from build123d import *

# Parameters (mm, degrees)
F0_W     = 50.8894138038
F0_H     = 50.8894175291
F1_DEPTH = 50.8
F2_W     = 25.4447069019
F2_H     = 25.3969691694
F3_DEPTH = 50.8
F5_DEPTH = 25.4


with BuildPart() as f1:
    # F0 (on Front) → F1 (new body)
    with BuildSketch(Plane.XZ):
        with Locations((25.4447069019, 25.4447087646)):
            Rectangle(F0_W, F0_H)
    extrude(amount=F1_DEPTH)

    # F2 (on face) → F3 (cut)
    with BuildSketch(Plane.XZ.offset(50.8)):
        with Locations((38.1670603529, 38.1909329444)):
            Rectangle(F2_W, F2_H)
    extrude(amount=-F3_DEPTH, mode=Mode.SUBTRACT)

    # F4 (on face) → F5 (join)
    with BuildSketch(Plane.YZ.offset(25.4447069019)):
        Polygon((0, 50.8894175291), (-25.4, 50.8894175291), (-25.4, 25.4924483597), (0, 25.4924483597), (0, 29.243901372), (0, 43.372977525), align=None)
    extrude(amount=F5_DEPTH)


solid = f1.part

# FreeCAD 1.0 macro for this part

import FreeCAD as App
import Part
import Sketcher
Q = App.Units.Quantity


def add_polygon(sketch, points):
    """Adds a closed chain of lines whose ends are joined by coincident constraints."""
    first, n = sketch.GeometryCount, len(points)
    for a, b in zip(points, points[1:] + points[:1]):
        sketch.addGeometry(Part.LineSegment(App.Vector(*a, 0), App.Vector(*b, 0)), False)
    for i in range(n):
        sketch.addConstraint(Sketcher.Constraint("Coincident", first + i, 2, first + (i + 1) % n, 1))

doc = App.newDocument("Part")
body = doc.addObject("PartDesign::Body", "Body")

# Sketch on XZ plane
sketch1 = doc.addObject("Sketcher::SketchObject", "Sketch")
body.addObject(sketch1)
sketch1.AttachmentSupport = (doc.XZ_Plane, [""])
sketch1.MapMode = "FlatFace"
add_polygon(sketch1, [(0, 51), (0, 0), (51, 0), (51, 51)])  # lines 0-3
sketch1.addConstraint([
    Sketcher.Constraint("Vertical", 0),
    Sketcher.Constraint("Horizontal", 1),
    Sketcher.Constraint("Vertical", 2),
    Sketcher.Constraint("Horizontal", 3),
    Sketcher.Constraint("Coincident", 0, 2, -1, 1),
    Sketcher.Constraint("DistanceX", 1, 1, 1, 2, 50.889414),
    Sketcher.Constraint("DistanceY", 0, 2, 0, 1, 50.889418),
])
pad1 = doc.addObject("PartDesign::Pad", "Pad")
body.addObject(pad1)
pad1.Profile = sketch1
pad1.Length = Q("2 in")

# Sketch on XZ plane
sketch2 = doc.addObject("Sketcher::SketchObject", "Sketch001")
body.addObject(sketch2)
sketch2.AttachmentSupport = (doc.XZ_Plane, [""])
sketch2.MapMode = "FlatFace"
sketch2.AttachmentOffset = App.Placement(App.Vector(0, 0, 2 * 25.4), App.Rotation())
add_polygon(sketch2, [(25, 51), (25, 25), (51, 25), (51, 51)])  # lines 0-3
sketch2.addConstraint([
    Sketcher.Constraint("Vertical", 0),
    Sketcher.Constraint("Horizontal", 1),
    Sketcher.Constraint("Vertical", 2),
    Sketcher.Constraint("Horizontal", 3),
    Sketcher.Constraint("DistanceY", 0, 2, 0, 1, 25.396969),
    Sketcher.Constraint("DistanceX", 1, 1, 1, 2, 25.444707),
    Sketcher.Constraint("DistanceY", -1, 1, 0, 2, 25.492448),
    Sketcher.Constraint("DistanceX", -1, 1, 0, 2, 25.444707),
])
pocket1 = doc.addObject("PartDesign::Pocket", "Pocket")
body.addObject(pocket1)
pocket1.Profile = sketch2
pocket1.Length = Q("2 in")

# Sketch on YZ plane
sketch3 = doc.addObject("Sketcher::SketchObject", "Sketch002")
body.addObject(sketch3)
sketch3.AttachmentSupport = (doc.YZ_Plane, [""])
sketch3.MapMode = "FlatFace"
sketch3.AttachmentOffset = App.Placement(App.Vector(0, 0, 25.444707), App.Rotation())
add_polygon(sketch3, [(0, 51), (-25, 51), (-25, 25), (0, 25)])  # lines 0-3
sketch3.addConstraint([
    Sketcher.Constraint("Horizontal", 0),
    Sketcher.Constraint("Vertical", 1),
    Sketcher.Constraint("Horizontal", 2),
    Sketcher.Constraint("Vertical", 3),
    Sketcher.Constraint("PointOnObject", 2, 2, -2),
    Sketcher.Constraint("DistanceX", 0, 2, 0, 1, Q("1 in")),
    Sketcher.Constraint("DistanceY", 1, 2, 1, 1, 25.396969),
    Sketcher.Constraint("DistanceY", -1, 1, 1, 2, 25.492448),
])
pad2 = doc.addObject("PartDesign::Pad", "Pad001")
body.addObject(pad2)
pad2.Profile = sketch3
pad2.Length = Q("1 in")

doc.recompute()
